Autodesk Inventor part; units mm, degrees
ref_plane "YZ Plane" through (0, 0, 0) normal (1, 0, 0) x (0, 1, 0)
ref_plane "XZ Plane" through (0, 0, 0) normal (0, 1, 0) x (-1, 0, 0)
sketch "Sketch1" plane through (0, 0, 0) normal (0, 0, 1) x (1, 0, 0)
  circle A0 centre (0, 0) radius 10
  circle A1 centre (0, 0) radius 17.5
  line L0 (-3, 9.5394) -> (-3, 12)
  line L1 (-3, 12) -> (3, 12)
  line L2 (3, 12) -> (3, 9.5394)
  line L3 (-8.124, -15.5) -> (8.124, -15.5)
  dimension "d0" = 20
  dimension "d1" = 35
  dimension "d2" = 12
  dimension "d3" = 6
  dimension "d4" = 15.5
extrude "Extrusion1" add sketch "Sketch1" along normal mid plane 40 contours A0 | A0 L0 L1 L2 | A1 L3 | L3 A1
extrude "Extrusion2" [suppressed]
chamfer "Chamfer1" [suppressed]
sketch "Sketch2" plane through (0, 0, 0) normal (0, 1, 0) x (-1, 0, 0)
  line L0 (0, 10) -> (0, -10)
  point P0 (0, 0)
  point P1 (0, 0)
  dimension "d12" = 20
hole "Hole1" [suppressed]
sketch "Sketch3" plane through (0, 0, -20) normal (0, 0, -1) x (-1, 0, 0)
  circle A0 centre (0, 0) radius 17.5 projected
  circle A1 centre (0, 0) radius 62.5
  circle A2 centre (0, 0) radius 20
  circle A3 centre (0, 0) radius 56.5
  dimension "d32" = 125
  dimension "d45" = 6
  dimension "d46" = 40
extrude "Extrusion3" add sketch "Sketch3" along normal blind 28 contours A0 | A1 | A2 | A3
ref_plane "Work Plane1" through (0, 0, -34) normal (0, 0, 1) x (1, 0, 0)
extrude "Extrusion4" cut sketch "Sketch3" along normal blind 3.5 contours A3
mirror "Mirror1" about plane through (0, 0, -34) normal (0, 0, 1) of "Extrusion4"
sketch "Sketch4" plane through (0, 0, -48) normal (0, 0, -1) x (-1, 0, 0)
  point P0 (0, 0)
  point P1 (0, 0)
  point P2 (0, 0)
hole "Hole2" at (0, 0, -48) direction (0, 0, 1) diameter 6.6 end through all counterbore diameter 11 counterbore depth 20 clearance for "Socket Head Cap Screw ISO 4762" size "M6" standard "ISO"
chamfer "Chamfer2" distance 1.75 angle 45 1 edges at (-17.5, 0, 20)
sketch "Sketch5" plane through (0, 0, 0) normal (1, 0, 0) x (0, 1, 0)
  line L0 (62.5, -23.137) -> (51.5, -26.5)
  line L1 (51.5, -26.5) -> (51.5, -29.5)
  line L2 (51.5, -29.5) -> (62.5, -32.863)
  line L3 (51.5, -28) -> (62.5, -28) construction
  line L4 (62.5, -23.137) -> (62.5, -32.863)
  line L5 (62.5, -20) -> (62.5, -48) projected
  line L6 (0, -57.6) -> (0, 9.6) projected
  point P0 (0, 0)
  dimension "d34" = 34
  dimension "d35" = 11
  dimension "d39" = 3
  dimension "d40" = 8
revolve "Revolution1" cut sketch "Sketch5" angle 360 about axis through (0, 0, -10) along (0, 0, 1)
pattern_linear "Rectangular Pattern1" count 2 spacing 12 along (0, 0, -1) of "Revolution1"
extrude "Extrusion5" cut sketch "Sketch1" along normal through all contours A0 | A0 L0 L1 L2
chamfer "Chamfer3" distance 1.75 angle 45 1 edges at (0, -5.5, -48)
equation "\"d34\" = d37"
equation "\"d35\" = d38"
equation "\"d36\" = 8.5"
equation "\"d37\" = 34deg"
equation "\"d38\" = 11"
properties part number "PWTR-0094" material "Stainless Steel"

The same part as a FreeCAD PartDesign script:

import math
import FreeCAD as App
import Part
import Sketcher
from FreeCAD import Vector
Q = App.Units.Quantity


def edges_at(feature, points):
    """Names of the edges that pass closest to the given points."""
    edges = feature.Shape.Edges
    near = lambda p: min(range(len(edges)), key=lambda i: edges[i].distToShape(Part.Vertex(*p))[0])
    return sorted({f"Edge{near(p) + 1}" for p in points})


def add_polygon(sketch, points):
    """Adds a closed chain of lines whose ends are joined by coincident constraints."""
    first, n = sketch.GeometryCount, len(points)
    for a, b in zip(points, points[1:] + points[:1]):
        sketch.addGeometry(Part.LineSegment(App.Vector(*a, 0), App.Vector(*b, 0)), False)
    for i in range(n):
        sketch.addConstraint(Sketcher.Constraint("Coincident", first + i, 2, first + (i + 1) % n, 1))

doc = App.newDocument("Part")
params = doc.addObject("Spreadsheet::Sheet", "Params")
for row, (alias, value) in enumerate([
    ("sketch1_diameter", "35 mm"),
    ("pad1_length", "40 mm"),
    ("sketch2_diameter", "125 mm"),
    ("pad2_length", "28 mm"),
    ("sketch3_diameter", "40 mm"),
    ("sketch3_diameter2", "113 mm"),
    ("pocket1_length", "3.5 mm"),
    ("sketch4_diameter", "6.6 mm"),
    ("hole_diameter", "6.6 mm"),
    ("hole_cbore_diameter", "11 mm"),
    ("hole_cbore_depth", "20 mm"),
    ("chamfer_size", "1.75 mm"),
    ("sketch5_height", "3 mm"),
    ("groove_angle", "360 deg"),
    ("linearpattern_pitch", "12 mm"),
    ("sketch6_radius", "10 mm"),
    ("sketch6_width", "6 mm"),
    ("chamfer2_size", "1.75 mm"),
], start=1):
    params.set(f"A{row}", alias)
    params.set(f"B{row}", "=" + value)
    params.setAlias(f"B{row}", alias)

body = doc.addObject("PartDesign::Body", "Body")

# Sketch on XY plane
sketch1 = body.newObject("Sketcher::SketchObject", "Sketch")
sketch1.AttachmentSupport = (doc.getObject("XY_Plane"), [""])
sketch1.MapMode = "FlatFace"
sketch1.addGeometry(Part.Circle(Vector(0, 0, 0), Vector(0, 0, 1), 17.5), False)
sketch1.addConstraint([
    Sketcher.Constraint("Coincident", 0, 3, -1, 1),
    Sketcher.Constraint("Diameter", 0, 35.0),
])
sketch1.setExpression("Constraints[1]", "Params.sketch1_diameter")
pad1 = body.newObject("PartDesign::Pad", "Pad")
pad1.Profile = sketch1
pad1.setExpression("Length", "Params.pad1_length")
pad1.Midplane = True

# Sketch on XY plane
sketch2 = body.newObject("Sketcher::SketchObject", "Sketch001")
sketch2.AttachmentSupport = (doc.getObject("XY_Plane"), [""])
sketch2.MapMode = "FlatFace"
sketch2.AttachmentOffset = App.Placement(Vector(0, 0, -20), App.Rotation())
sketch2.addGeometry(Part.Circle(Vector(0, 0, 0), Vector(0, 0, 1), 62.5), False)
sketch2.addConstraint([
    Sketcher.Constraint("Coincident", 0, 3, -1, 1),
    Sketcher.Constraint("Diameter", 0, 125.0),
])
sketch2.setExpression("Constraints[1]", "Params.sketch2_diameter")
pad2 = body.newObject("PartDesign::Pad", "Pad001")
pad2.Profile = sketch2
pad2.setExpression("Length", "Params.pad2_length")
pad2.Reversed = True

# Sketch on XY plane
sketch3 = body.newObject("Sketcher::SketchObject", "Sketch002")
sketch3.AttachmentSupport = (doc.getObject("XY_Plane"), [""])
sketch3.MapMode = "FlatFace"
sketch3.AttachmentOffset = App.Placement(Vector(0, 0, -20), App.Rotation())
sketch3.addGeometry([
    Part.Circle(Vector(0, 0, 0), Vector(0, 0, 1), 56.5),
    Part.Circle(Vector(0, 0, 0), Vector(0, 0, 1), 20),
], False)
sketch3.addConstraint([
    Sketcher.Constraint("Coincident", 0, 3, -1, 1),
    Sketcher.Constraint("Coincident", 1, 3, -1, 1),
    Sketcher.Constraint("Diameter", 1, 40.0),
    Sketcher.Constraint("Diameter", 0, 113.0),
])
sketch3.setExpression("Constraints[2]", "Params.sketch3_diameter")
sketch3.setExpression("Constraints[3]", "Params.sketch3_diameter2")
pocket1 = body.newObject("PartDesign::Pocket", "Pocket")
pocket1.Profile = sketch3
pocket1.setExpression("Length", "Params.pocket1_length")
doc.recompute()

datumplane = body.newObject("PartDesign::Plane", "DatumPlane")
datumplane.AttachmentSupport = (doc.getObject("XY_Plane"), [""])
datumplane.MapMode = "FlatFace"
datumplane.AttachmentOffset = App.Placement(Vector(0, 0, -34), App.Rotation())
mirrored = body.newObject("PartDesign::Mirrored", "Mirrored")
mirrored.Originals = [pocket1]
mirrored.MirrorPlane = (datumplane, [""])
body.Tip = mirrored

# Sketch on XY plane
sketch4 = body.newObject("Sketcher::SketchObject", "Sketch003")
sketch4.AttachmentSupport = (doc.getObject("XY_Plane"), [""])
sketch4.MapMode = "FlatFace"
sketch4.AttachmentOffset = App.Placement(Vector(0, 0, -48), App.Rotation())
sketch4.addGeometry(Part.Circle(Vector(0, 0, 0), Vector(0, 0, 1), 3.3), False)
sketch4.addConstraint([
    Sketcher.Constraint("Coincident", 0, 3, -1, 1),
    Sketcher.Constraint("Diameter", 0, 6.6),
])
sketch4.setExpression("Constraints[1]", "Params.sketch4_diameter")
doc.recompute()
hole = body.newObject("PartDesign::Hole", "Hole")
hole.Profile = sketch4
hole.ThreadType = "None"
hole.setExpression("Diameter", "Params.hole_diameter")
hole.DepthType = "ThroughAll"
hole.HoleCutType = "Counterbore"
hole.setExpression("HoleCutDiameter", "Params.hole_cbore_diameter")
hole.setExpression("HoleCutDepth", "Params.hole_cbore_depth")
hole.Reversed = True
doc.recompute()

chamfer = body.newObject("PartDesign::Chamfer", "Chamfer")
chamfer.Base = (hole, edges_at(hole, [(-17.5, 0, 20)]))
chamfer.setExpression("Size", "Params.chamfer_size")

# Sketch on YZ plane
sketch5 = body.newObject("Sketcher::SketchObject", "Sketch004")
sketch5.AttachmentSupport = (doc.getObject("YZ_Plane"), [""])
sketch5.MapMode = "FlatFace"
add_polygon(sketch5, [(62.5, -32.863), (62.5, -23.137), (51.5, -26.5), (51.5, -29.5)])  # lines 0-3
sketch5.addConstraint([
    Sketcher.Constraint("Vertical", 0),
    Sketcher.Constraint("Vertical", 2),
    Sketcher.Constraint("Equal", 1, 3),
    Sketcher.Constraint("DistanceY", 2, 2, 2, 1, 3.0),
    Sketcher.Constraint("DistanceX", 1, 2, 0, 2, 11.0),
    Sketcher.Constraint("Angle", 1, Q("-163.0002 deg")),
    Sketcher.Constraint("DistanceX", -1, 1, 0, 2, 62.5),
    Sketcher.Constraint("DistanceY", 1, 2, -1, 1, 26.5),
])
sketch5.setExpression("Constraints[7]", "Params.sketch5_height")
groove = body.newObject("PartDesign::Groove", "Groove")
groove.Profile = sketch5
groove.ReferenceAxis = (sketch5, ["V_Axis"])
groove.setExpression("Angle", "Params.groove_angle")
doc.recompute()

linearpattern = body.newObject("PartDesign::LinearPattern", "LinearPattern")
linearpattern.Originals = [groove]
linearpattern.Direction = (doc.getObject("Z_Axis"), [""])
linearpattern.Mode = "offset"
linearpattern.setExpression("Offset", "Params.linearpattern_pitch")
linearpattern.Occurrences = 2
linearpattern.Reversed = True
body.Tip = linearpattern

# Sketch on XY plane
sketch6 = body.newObject("Sketcher::SketchObject", "Sketch005")
sketch6.AttachmentSupport = (doc.getObject("XY_Plane"), [""])
sketch6.MapMode = "FlatFace"
sketch6.addGeometry([
    Part.ArcOfCircle(Part.Circle(Vector(0, 0, 0), Vector(0, 0, 1), 10), math.radians(107.457589), math.radians(432.542411)),
    Part.LineSegment(Vector(3, 9.5394, 0), Vector(3, 12, 0)),
    Part.LineSegment(Vector(3, 12, 0), Vector(-3, 12, 0)),
    Part.LineSegment(Vector(-3, 12, 0), Vector(-3, 9.5394, 0)),
], False)
sketch6.addConstraint([
    Sketcher.Constraint("Coincident", 0, 2, 1, 1),
    Sketcher.Constraint("Coincident", 1, 2, 2, 1),
    Sketcher.Constraint("Coincident", 2, 2, 3, 1),
    Sketcher.Constraint("Coincident", 3, 2, 0, 1),
    Sketcher.Constraint("Vertical", 1),
    Sketcher.Constraint("Horizontal", 2),
    Sketcher.Constraint("Vertical", 3),
    Sketcher.Constraint("Coincident", 0, 3, -1, 1),
    Sketcher.Constraint("Horizontal", 0, 2, 3, 2),
    Sketcher.Constraint("Radius", 0, 10.0),
    Sketcher.Constraint("DistanceX", 2, 2, 2, 1, 6.0),
    Sketcher.Constraint("DistanceY", -1, 1, 1, 2, 12.0),
])
sketch6.setExpression("Constraints[9]", "Params.sketch6_radius")
sketch6.setExpression("Constraints[10]", "Params.sketch6_width")
pocket2 = body.newObject("PartDesign::Pocket", "Pocket001")
pocket2.Profile = sketch6
pocket2.Type = "ThroughAll"
pocket2.Reversed = True
doc.recompute()

chamfer2 = body.newObject("PartDesign::Chamfer", "Chamfer001")
chamfer2.Base = (pocket2, edges_at(pocket2, [(0, -5.5, -48)]))
chamfer2.setExpression("Size", "Params.chamfer2_size")

doc.recompute()
